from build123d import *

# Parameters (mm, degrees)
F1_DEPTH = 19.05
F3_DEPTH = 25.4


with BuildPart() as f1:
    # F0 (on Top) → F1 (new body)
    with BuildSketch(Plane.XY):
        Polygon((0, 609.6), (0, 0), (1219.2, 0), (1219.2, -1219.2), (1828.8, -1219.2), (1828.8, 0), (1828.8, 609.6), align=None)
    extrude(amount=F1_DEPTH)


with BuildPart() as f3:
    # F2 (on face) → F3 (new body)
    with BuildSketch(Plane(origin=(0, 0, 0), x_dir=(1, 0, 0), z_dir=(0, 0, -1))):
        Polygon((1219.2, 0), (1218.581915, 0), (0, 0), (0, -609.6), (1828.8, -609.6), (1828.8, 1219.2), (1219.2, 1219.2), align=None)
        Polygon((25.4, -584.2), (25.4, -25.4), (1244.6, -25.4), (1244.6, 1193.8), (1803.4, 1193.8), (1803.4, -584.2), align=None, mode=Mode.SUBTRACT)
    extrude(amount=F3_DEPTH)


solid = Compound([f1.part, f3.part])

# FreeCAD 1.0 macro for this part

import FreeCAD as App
import Part
import Sketcher

V = App.Vector
Q = App.Units.Quantity


def add_polygon(sketch, points):
    """Adds a closed chain of lines whose ends are joined by coincident constraints."""
    first, n = sketch.GeometryCount, len(points)
    for a, b in zip(points, points[1:] + points[:1]):
        sketch.addGeometry(Part.LineSegment(App.Vector(*a, 0), App.Vector(*b, 0)), False)
    for i in range(n):
        sketch.addConstraint(Sketcher.Constraint("Coincident", first + i, 2, first + (i + 1) % n, 1))

doc = App.newDocument("Part")
body = doc.addObject("PartDesign::Body", "Body")

sketch1 = body.newObject("Sketcher::SketchObject", "Sketch")
sketch1.AttachmentSupport = (doc.getObject("XY_Plane"), [""])
sketch1.MapMode = "FlatFace"
add_polygon(sketch1, [(0, 609.6), (0, 0), (1219.2, 0), (1219.2, -1219.2), (1828.8, -1219.2), (1828.8, 609.6)])
sketch1.addConstraint(Sketcher.Constraint("Vertical", 0))
sketch1.addConstraint(Sketcher.Constraint("Horizontal", 1))
sketch1.addConstraint(Sketcher.Constraint("Vertical", 2))
sketch1.addConstraint(Sketcher.Constraint("Horizontal", 3))
sketch1.addConstraint(Sketcher.Constraint("Vertical", 4))
sketch1.addConstraint(Sketcher.Constraint("Horizontal", 5))
sketch1.addConstraint(Sketcher.Constraint("Coincident", 0, 2, -1, 1))
sketch1.addConstraint(Sketcher.Constraint("Equal", 3, 0))
sketch1.addConstraint(Sketcher.Constraint("Equal", 1, 2))
sketch1.addConstraint(Sketcher.Constraint("DistanceX", 1, 1, 1, 2, Q("48 in")))
sketch1.addConstraint(Sketcher.Constraint("DistanceX", 3, 1, 3, 2, Q("24 in")))
pad1 = body.newObject("PartDesign::Pad", "Pad")
pad1.Profile = sketch1
pad1.Length = Q("0.75 in")
body2 = doc.addObject("PartDesign::Body", "Body001")

sketch2 = body2.newObject("Sketcher::SketchObject", "Sketch001")
sketch2.AttachmentSupport = (doc.getObject("XY_Plane001"), [""])
sketch2.MapMode = "FlatFace"
add_polygon(sketch2, [(1219.2, 0), (0, 0), (0, 609.6), (1828.8, 609.6), (1828.8, -1219.2), (1219.2, -1219.2)])
add_polygon(sketch2, [(1803.4, 584.2), (25.4, 584.2), (25.4, 25.4), (1244.6, 25.4), (1244.6, -1193.8), (1803.4, -1193.8)])
sketch2.addConstraint(Sketcher.Constraint("Horizontal", 0))
sketch2.addConstraint(Sketcher.Constraint("Vertical", 1))
sketch2.addConstraint(Sketcher.Constraint("Horizontal", 2))
sketch2.addConstraint(Sketcher.Constraint("Vertical", 3))
sketch2.addConstraint(Sketcher.Constraint("Horizontal", 4))
sketch2.addConstraint(Sketcher.Constraint("Vertical", 5))
sketch2.addConstraint(Sketcher.Constraint("Horizontal", 6))
sketch2.addConstraint(Sketcher.Constraint("Vertical", 7))
sketch2.addConstraint(Sketcher.Constraint("Horizontal", 8))
sketch2.addConstraint(Sketcher.Constraint("Vertical", 9))
sketch2.addConstraint(Sketcher.Constraint("Horizontal", 10))
sketch2.addConstraint(Sketcher.Constraint("Vertical", 11))
sketch2.addConstraint(Sketcher.Constraint("Coincident", 0, 2, -1, 1))
sketch2.addConstraint(Sketcher.Constraint("Equal", 0, 8))
sketch2.addConstraint(Sketcher.Constraint("Equal", 4, 1))
sketch2.addConstraint(Sketcher.Constraint("Equal", 2, 3))
sketch2.addConstraint(Sketcher.Constraint("Equal", 10, 7))
sketch2.addConstraint(Sketcher.Constraint("Equal", 5, 9))
sketch2.addConstraint(Sketcher.Constraint("DistanceX", 0, 2, 0, 1, Q("48 in")))
sketch2.addConstraint(Sketcher.Constraint("DistanceX", 2, 1, 2, 2, Q("72 in")))
sketch2.addConstraint(Sketcher.Constraint("DistanceX", 6, 2, 6, 1, Q("70 in")))
sketch2.addConstraint(Sketcher.Constraint("DistanceX", -1, 1, 6, 2, Q("1 in")))
sketch2.addConstraint(Sketcher.Constraint("DistanceY", -1, 1, 6, 2, Q("23 in")))
pad2 = body2.newObject("PartDesign::Pad", "Pad001")
pad2.Profile = sketch2
pad2.Length = Q("1 in")
pad2.Reversed = True

doc.recompute()
